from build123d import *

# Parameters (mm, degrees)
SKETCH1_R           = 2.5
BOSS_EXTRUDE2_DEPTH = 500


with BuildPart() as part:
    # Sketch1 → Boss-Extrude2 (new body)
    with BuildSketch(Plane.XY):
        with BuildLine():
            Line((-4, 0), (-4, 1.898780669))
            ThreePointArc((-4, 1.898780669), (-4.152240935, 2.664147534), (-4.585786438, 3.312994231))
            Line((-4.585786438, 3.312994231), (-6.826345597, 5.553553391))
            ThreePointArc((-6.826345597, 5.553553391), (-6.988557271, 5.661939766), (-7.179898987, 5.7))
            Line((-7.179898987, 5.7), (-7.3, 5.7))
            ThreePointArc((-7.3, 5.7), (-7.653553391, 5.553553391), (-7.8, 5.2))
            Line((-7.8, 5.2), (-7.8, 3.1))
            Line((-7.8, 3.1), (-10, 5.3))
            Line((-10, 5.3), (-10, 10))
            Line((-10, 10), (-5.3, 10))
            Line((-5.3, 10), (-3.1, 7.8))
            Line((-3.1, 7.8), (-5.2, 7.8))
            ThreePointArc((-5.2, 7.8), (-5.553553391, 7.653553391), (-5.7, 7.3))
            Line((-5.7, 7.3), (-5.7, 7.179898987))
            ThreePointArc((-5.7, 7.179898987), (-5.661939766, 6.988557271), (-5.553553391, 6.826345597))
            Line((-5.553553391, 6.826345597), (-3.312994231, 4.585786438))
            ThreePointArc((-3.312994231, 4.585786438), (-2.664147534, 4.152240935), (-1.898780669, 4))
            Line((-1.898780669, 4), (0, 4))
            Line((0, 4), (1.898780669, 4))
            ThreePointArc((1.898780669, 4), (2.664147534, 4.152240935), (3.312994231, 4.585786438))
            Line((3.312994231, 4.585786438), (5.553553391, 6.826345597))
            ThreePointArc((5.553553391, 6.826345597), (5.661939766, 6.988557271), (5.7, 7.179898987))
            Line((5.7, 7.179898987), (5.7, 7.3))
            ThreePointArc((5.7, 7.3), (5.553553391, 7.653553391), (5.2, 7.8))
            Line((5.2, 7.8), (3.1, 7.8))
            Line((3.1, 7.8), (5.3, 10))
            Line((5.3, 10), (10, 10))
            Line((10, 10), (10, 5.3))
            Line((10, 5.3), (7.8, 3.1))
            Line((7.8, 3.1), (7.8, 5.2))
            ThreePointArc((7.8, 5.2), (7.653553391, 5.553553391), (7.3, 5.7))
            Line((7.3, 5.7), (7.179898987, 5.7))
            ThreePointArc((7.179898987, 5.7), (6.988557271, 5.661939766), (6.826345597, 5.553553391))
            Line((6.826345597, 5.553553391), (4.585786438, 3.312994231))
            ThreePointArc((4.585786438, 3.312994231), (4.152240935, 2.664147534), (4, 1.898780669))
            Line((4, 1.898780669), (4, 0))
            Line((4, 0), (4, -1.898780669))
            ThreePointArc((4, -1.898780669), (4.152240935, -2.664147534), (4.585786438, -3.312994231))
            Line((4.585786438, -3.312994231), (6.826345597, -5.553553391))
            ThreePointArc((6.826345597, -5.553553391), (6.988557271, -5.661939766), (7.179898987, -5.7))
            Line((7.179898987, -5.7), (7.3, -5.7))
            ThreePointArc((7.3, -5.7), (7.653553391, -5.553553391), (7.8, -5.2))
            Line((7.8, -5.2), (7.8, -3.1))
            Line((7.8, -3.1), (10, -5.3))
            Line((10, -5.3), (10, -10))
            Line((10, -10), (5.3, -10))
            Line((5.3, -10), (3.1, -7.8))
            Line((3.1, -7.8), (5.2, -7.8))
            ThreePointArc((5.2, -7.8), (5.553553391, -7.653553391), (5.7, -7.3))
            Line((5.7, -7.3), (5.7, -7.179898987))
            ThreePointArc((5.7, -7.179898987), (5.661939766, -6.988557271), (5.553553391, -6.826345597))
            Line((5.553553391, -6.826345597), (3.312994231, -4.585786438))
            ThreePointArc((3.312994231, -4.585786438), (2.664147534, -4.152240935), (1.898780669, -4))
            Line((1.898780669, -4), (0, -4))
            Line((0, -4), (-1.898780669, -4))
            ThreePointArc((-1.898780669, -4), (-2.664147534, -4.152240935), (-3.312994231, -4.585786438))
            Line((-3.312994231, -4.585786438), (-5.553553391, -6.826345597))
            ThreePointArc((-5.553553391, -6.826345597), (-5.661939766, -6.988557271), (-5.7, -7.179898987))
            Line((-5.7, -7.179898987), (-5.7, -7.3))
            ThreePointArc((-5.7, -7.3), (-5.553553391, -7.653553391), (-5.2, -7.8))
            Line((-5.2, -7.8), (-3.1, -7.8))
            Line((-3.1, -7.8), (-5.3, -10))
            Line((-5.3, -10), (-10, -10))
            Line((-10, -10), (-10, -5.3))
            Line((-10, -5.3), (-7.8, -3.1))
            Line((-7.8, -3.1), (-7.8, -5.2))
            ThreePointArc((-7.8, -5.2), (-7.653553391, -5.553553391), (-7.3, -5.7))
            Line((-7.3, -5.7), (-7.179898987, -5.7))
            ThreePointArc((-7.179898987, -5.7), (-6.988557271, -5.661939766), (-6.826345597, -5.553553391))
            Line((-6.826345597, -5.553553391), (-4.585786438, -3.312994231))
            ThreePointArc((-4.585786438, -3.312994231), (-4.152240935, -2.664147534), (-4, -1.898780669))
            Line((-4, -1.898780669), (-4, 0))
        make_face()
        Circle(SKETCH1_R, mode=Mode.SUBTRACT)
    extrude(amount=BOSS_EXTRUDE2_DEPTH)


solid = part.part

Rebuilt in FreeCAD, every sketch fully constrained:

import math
import FreeCAD as App
import Part
import Sketcher
from FreeCAD import Vector
Q = App.Units.Quantity

doc = App.newDocument("Part")
body = doc.addObject("PartDesign::Body", "Body")

# Sketch on XY plane
sketch1 = body.newObject("Sketcher::SketchObject", "Sketch")
sketch1.AttachmentSupport = (doc.getObject("XY_Plane"), [""])
sketch1.MapMode = "FlatFace"
sketch1.addGeometry(Part.ArcOfCircle(Part.Circle(Vector(-6, 1.9, 0), Vector(0, 0, 1), 2), math.radians(0), math.radians(45)), False)
sketch1.addGeometry(Part.LineSegment(Vector(-4, 1.9, 0), Vector(-4, -1.9, 0)), False)
sketch1.addGeometry(Part.ArcOfCircle(Part.Circle(Vector(-6, -1.9, 0), Vector(0, 0, 1), 2), math.radians(-45), math.radians(0)), False)
sketch1.addGeometry(Part.LineSegment(Vector(-4.59, -3.31, 0), Vector(-6.83, -5.55, 0)), False)
sketch1.addGeometry(Part.ArcOfCircle(Part.Circle(Vector(-7.18, -5.2, 0), Vector(0, 0, 1), 0.5), math.radians(-90), math.radians(-45)), False)
sketch1.addGeometry(Part.LineSegment(Vector(-7.18, -5.7, 0), Vector(-7.3, -5.7, 0)), False)
sketch1.addGeometry(Part.ArcOfCircle(Part.Circle(Vector(-7.3, -5.2, 0), Vector(0, 0, 1), 0.5), math.radians(180), math.radians(270)), False)
sketch1.addGeometry(Part.LineSegment(Vector(-7.8, -5.2, 0), Vector(-7.8, -3.1, 0)), False)
sketch1.addGeometry(Part.LineSegment(Vector(-7.8, -3.1, 0), Vector(-10, -5.3, 0)), False)
sketch1.addGeometry(Part.LineSegment(Vector(-10, -5.3, 0), Vector(-10, -10, 0)), False)
sketch1.addGeometry(Part.LineSegment(Vector(-10, -10, 0), Vector(-5.3, -10, 0)), False)
sketch1.addGeometry(Part.LineSegment(Vector(-5.3, -10, 0), Vector(-3.1, -7.8, 0)), False)
sketch1.addGeometry(Part.LineSegment(Vector(-3.1, -7.8, 0), Vector(-5.2, -7.8, 0)), False)
sketch1.addGeometry(Part.ArcOfCircle(Part.Circle(Vector(-5.2, -7.3, 0), Vector(0, 0, 1), 0.5), math.radians(180), math.radians(270)), False)
sketch1.addGeometry(Part.LineSegment(Vector(-5.7, -7.3, 0), Vector(-5.7, -7.18, 0)), False)
sketch1.addGeometry(Part.ArcOfCircle(Part.Circle(Vector(-5.2, -7.18, 0), Vector(0, 0, 1), 0.5), math.radians(135), math.radians(180)), False)
sketch1.addGeometry(Part.LineSegment(Vector(-5.55, -6.83, 0), Vector(-3.31, -4.59, 0)), False)
sketch1.addGeometry(Part.ArcOfCircle(Part.Circle(Vector(-1.9, -6, 0), Vector(0, 0, 1), 2), math.radians(90), math.radians(135)), False)
sketch1.addGeometry(Part.LineSegment(Vector(-1.9, -4, 0), Vector(1.9, -4, 0)), False)
sketch1.addGeometry(Part.ArcOfCircle(Part.Circle(Vector(1.9, -6, 0), Vector(0, 0, 1), 2), math.radians(45), math.radians(90)), False)
sketch1.addGeometry(Part.LineSegment(Vector(3.31, -4.59, 0), Vector(5.55, -6.83, 0)), False)
sketch1.addGeometry(Part.ArcOfCircle(Part.Circle(Vector(5.2, -7.18, 0), Vector(0, 0, 1), 0.5), math.radians(0), math.radians(45)), False)
sketch1.addGeometry(Part.LineSegment(Vector(5.7, -7.18, 0), Vector(5.7, -7.3, 0)), False)
sketch1.addGeometry(Part.ArcOfCircle(Part.Circle(Vector(5.2, -7.3, 0), Vector(0, 0, 1), 0.5), math.radians(-90), math.radians(0)), False)
sketch1.addGeometry(Part.LineSegment(Vector(5.2, -7.8, 0), Vector(3.1, -7.8, 0)), False)
sketch1.addGeometry(Part.LineSegment(Vector(3.1, -7.8, 0), Vector(5.3, -10, 0)), False)
sketch1.addGeometry(Part.LineSegment(Vector(5.3, -10, 0), Vector(10, -10, 0)), False)
sketch1.addGeometry(Part.LineSegment(Vector(10, -10, 0), Vector(10, -5.3, 0)), False)
sketch1.addGeometry(Part.LineSegment(Vector(10, -5.3, 0), Vector(7.8, -3.1, 0)), False)
sketch1.addGeometry(Part.LineSegment(Vector(7.8, -3.1, 0), Vector(7.8, -5.2, 0)), False)
sketch1.addGeometry(Part.ArcOfCircle(Part.Circle(Vector(7.3, -5.2, 0), Vector(0, 0, 1), 0.5), math.radians(-90), math.radians(0)), False)
sketch1.addGeometry(Part.LineSegment(Vector(7.3, -5.7, 0), Vector(7.18, -5.7, 0)), False)
sketch1.addGeometry(Part.ArcOfCircle(Part.Circle(Vector(7.18, -5.2, 0), Vector(0, 0, 1), 0.5), math.radians(-135), math.radians(-90)), False)
sketch1.addGeometry(Part.LineSegment(Vector(6.83, -5.55, 0), Vector(4.59, -3.31, 0)), False)
sketch1.addGeometry(Part.ArcOfCircle(Part.Circle(Vector(6, -1.9, 0), Vector(0, 0, 1), 2), math.radians(180), math.radians(225)), False)
sketch1.addGeometry(Part.LineSegment(Vector(4, -1.9, 0), Vector(4, 1.9, 0)), False)
sketch1.addGeometry(Part.ArcOfCircle(Part.Circle(Vector(6, 1.9, 0), Vector(0, 0, 1), 2), math.radians(135), math.radians(180)), False)
sketch1.addGeometry(Part.LineSegment(Vector(4.59, 3.31, 0), Vector(6.83, 5.55, 0)), False)
sketch1.addGeometry(Part.ArcOfCircle(Part.Circle(Vector(7.18, 5.2, 0), Vector(0, 0, 1), 0.5), math.radians(90), math.radians(135)), False)
sketch1.addGeometry(Part.LineSegment(Vector(7.18, 5.7, 0), Vector(7.3, 5.7, 0)), False)
sketch1.addGeometry(Part.ArcOfCircle(Part.Circle(Vector(7.3, 5.2, 0), Vector(0, 0, 1), 0.5), math.radians(0), math.radians(90)), False)
sketch1.addGeometry(Part.LineSegment(Vector(7.8, 5.2, 0), Vector(7.8, 3.1, 0)), False)
sketch1.addGeometry(Part.LineSegment(Vector(7.8, 3.1, 0), Vector(10, 5.3, 0)), False)
sketch1.addGeometry(Part.LineSegment(Vector(10, 5.3, 0), Vector(10, 10, 0)), False)
sketch1.addGeometry(Part.LineSegment(Vector(10, 10, 0), Vector(5.3, 10, 0)), False)
sketch1.addGeometry(Part.LineSegment(Vector(5.3, 10, 0), Vector(3.1, 7.8, 0)), False)
sketch1.addGeometry(Part.LineSegment(Vector(3.1, 7.8, 0), Vector(5.2, 7.8, 0)), False)
sketch1.addGeometry(Part.ArcOfCircle(Part.Circle(Vector(5.2, 7.3, 0), Vector(0, 0, 1), 0.5), math.radians(0), math.radians(90)), False)
sketch1.addGeometry(Part.LineSegment(Vector(5.7, 7.3, 0), Vector(5.7, 7.18, 0)), False)
sketch1.addGeometry(Part.ArcOfCircle(Part.Circle(Vector(5.2, 7.18, 0), Vector(0, 0, 1), 0.5), math.radians(-45), math.radians(0)), False)
sketch1.addGeometry(Part.LineSegment(Vector(5.55, 6.83, 0), Vector(3.31, 4.59, 0)), False)
sketch1.addGeometry(Part.ArcOfCircle(Part.Circle(Vector(1.9, 6, 0), Vector(0, 0, 1), 2), math.radians(-90), math.radians(-45)), False)
sketch1.addGeometry(Part.LineSegment(Vector(1.9, 4, 0), Vector(-1.9, 4, 0)), False)
sketch1.addGeometry(Part.ArcOfCircle(Part.Circle(Vector(-1.9, 6, 0), Vector(0, 0, 1), 2), math.radians(-135), math.radians(-90)), False)
sketch1.addGeometry(Part.LineSegment(Vector(-3.31, 4.59, 0), Vector(-5.55, 6.83, 0)), False)
sketch1.addGeometry(Part.ArcOfCircle(Part.Circle(Vector(-5.2, 7.18, 0), Vector(0, 0, 1), 0.5), math.radians(-180), math.radians(-135)), False)
sketch1.addGeometry(Part.LineSegment(Vector(-5.7, 7.18, 0), Vector(-5.7, 7.3, 0)), False)
sketch1.addGeometry(Part.ArcOfCircle(Part.Circle(Vector(-5.2, 7.3, 0), Vector(0, 0, 1), 0.5), math.radians(90), math.radians(180)), False)
sketch1.addGeometry(Part.LineSegment(Vector(-5.2, 7.8, 0), Vector(-3.1, 7.8, 0)), False)
sketch1.addGeometry(Part.LineSegment(Vector(-3.1, 7.8, 0), Vector(-5.3, 10, 0)), False)
sketch1.addGeometry(Part.LineSegment(Vector(-5.3, 10, 0), Vector(-10, 10, 0)), False)
sketch1.addGeometry(Part.LineSegment(Vector(-10, 10, 0), Vector(-10, 5.3, 0)), False)
sketch1.addGeometry(Part.LineSegment(Vector(-10, 5.3, 0), Vector(-7.8, 3.1, 0)), False)
sketch1.addGeometry(Part.LineSegment(Vector(-7.8, 3.1, 0), Vector(-7.8, 5.2, 0)), False)
sketch1.addGeometry(Part.ArcOfCircle(Part.Circle(Vector(-7.3, 5.2, 0), Vector(0, 0, 1), 0.5), math.radians(90), math.radians(180)), False)
sketch1.addGeometry(Part.LineSegment(Vector(-7.3, 5.7, 0), Vector(-7.18, 5.7, 0)), False)
sketch1.addGeometry(Part.ArcOfCircle(Part.Circle(Vector(-7.18, 5.2, 0), Vector(0, 0, 1), 0.5), math.radians(45), math.radians(90)), False)
sketch1.addGeometry(Part.LineSegment(Vector(-6.83, 5.55, 0), Vector(-4.59, 3.31, 0)), False)
sketch1.addGeometry(Part.Circle(Vector(0, 0, 0), Vector(0, 0, 1), 2.5), False)
sketch1.addConstraint(Sketcher.Constraint("Tangent", 0, 1, 1, 1))
sketch1.addConstraint(Sketcher.Constraint("Tangent", 1, 2, 2, 2))
sketch1.addConstraint(Sketcher.Constraint("Tangent", 2, 1, 3, 1))
sketch1.addConstraint(Sketcher.Constraint("Tangent", 3, 2, 4, 2))
sketch1.addConstraint(Sketcher.Constraint("Tangent", 4, 1, 5, 1))
sketch1.addConstraint(Sketcher.Constraint("Tangent", 5, 2, 6, 2))
sketch1.addConstraint(Sketcher.Constraint("Tangent", 6, 1, 7, 1))
sketch1.addConstraint(Sketcher.Constraint("Coincident", 7, 2, 8, 1))
sketch1.addConstraint(Sketcher.Constraint("Coincident", 8, 2, 9, 1))
sketch1.addConstraint(Sketcher.Constraint("Coincident", 9, 2, 10, 1))
sketch1.addConstraint(Sketcher.Constraint("Coincident", 10, 2, 11, 1))
sketch1.addConstraint(Sketcher.Constraint("Coincident", 11, 2, 12, 1))
sketch1.addConstraint(Sketcher.Constraint("Tangent", 12, 2, 13, 2))
sketch1.addConstraint(Sketcher.Constraint("Tangent", 13, 1, 14, 1))
sketch1.addConstraint(Sketcher.Constraint("Tangent", 14, 2, 15, 2))
sketch1.addConstraint(Sketcher.Constraint("Tangent", 15, 1, 16, 1))
sketch1.addConstraint(Sketcher.Constraint("Tangent", 16, 2, 17, 2))
sketch1.addConstraint(Sketcher.Constraint("Tangent", 17, 1, 18, 1))
sketch1.addConstraint(Sketcher.Constraint("Tangent", 18, 2, 19, 2))
sketch1.addConstraint(Sketcher.Constraint("Tangent", 19, 1, 20, 1))
sketch1.addConstraint(Sketcher.Constraint("Tangent", 20, 2, 21, 2))
sketch1.addConstraint(Sketcher.Constraint("Tangent", 21, 1, 22, 1))
sketch1.addConstraint(Sketcher.Constraint("Tangent", 22, 2, 23, 2))
sketch1.addConstraint(Sketcher.Constraint("Tangent", 23, 1, 24, 1))
sketch1.addConstraint(Sketcher.Constraint("Coincident", 24, 2, 25, 1))
sketch1.addConstraint(Sketcher.Constraint("Coincident", 25, 2, 26, 1))
sketch1.addConstraint(Sketcher.Constraint("Coincident", 26, 2, 27, 1))
sketch1.addConstraint(Sketcher.Constraint("Coincident", 27, 2, 28, 1))
sketch1.addConstraint(Sketcher.Constraint("Coincident", 28, 2, 29, 1))
sketch1.addConstraint(Sketcher.Constraint("Tangent", 29, 2, 30, 2))
sketch1.addConstraint(Sketcher.Constraint("Tangent", 30, 1, 31, 1))
sketch1.addConstraint(Sketcher.Constraint("Tangent", 31, 2, 32, 2))
sketch1.addConstraint(Sketcher.Constraint("Tangent", 32, 1, 33, 1))
sketch1.addConstraint(Sketcher.Constraint("Tangent", 33, 2, 34, 2))
sketch1.addConstraint(Sketcher.Constraint("Tangent", 34, 1, 35, 1))
sketch1.addConstraint(Sketcher.Constraint("Tangent", 35, 2, 36, 2))
sketch1.addConstraint(Sketcher.Constraint("Tangent", 36, 1, 37, 1))
sketch1.addConstraint(Sketcher.Constraint("Tangent", 37, 2, 38, 2))
sketch1.addConstraint(Sketcher.Constraint("Tangent", 38, 1, 39, 1))
sketch1.addConstraint(Sketcher.Constraint("Tangent", 39, 2, 40, 2))
sketch1.addConstraint(Sketcher.Constraint("Tangent", 40, 1, 41, 1))
sketch1.addConstraint(Sketcher.Constraint("Coincident", 41, 2, 42, 1))
sketch1.addConstraint(Sketcher.Constraint("Coincident", 42, 2, 43, 1))
sketch1.addConstraint(Sketcher.Constraint("Coincident", 43, 2, 44, 1))
sketch1.addConstraint(Sketcher.Constraint("Coincident", 44, 2, 45, 1))
sketch1.addConstraint(Sketcher.Constraint("Coincident", 45, 2, 46, 1))
sketch1.addConstraint(Sketcher.Constraint("Tangent", 46, 2, 47, 2))
sketch1.addConstraint(Sketcher.Constraint("Tangent", 47, 1, 48, 1))
sketch1.addConstraint(Sketcher.Constraint("Tangent", 48, 2, 49, 2))
sketch1.addConstraint(Sketcher.Constraint("Tangent", 49, 1, 50, 1))
sketch1.addConstraint(Sketcher.Constraint("Tangent", 50, 2, 51, 2))
sketch1.addConstraint(Sketcher.Constraint("Tangent", 51, 1, 52, 1))
sketch1.addConstraint(Sketcher.Constraint("Tangent", 52, 2, 53, 2))
sketch1.addConstraint(Sketcher.Constraint("Tangent", 53, 1, 54, 1))
sketch1.addConstraint(Sketcher.Constraint("Tangent", 54, 2, 55, 2))
sketch1.addConstraint(Sketcher.Constraint("Tangent", 55, 1, 56, 1))
sketch1.addConstraint(Sketcher.Constraint("Tangent", 56, 2, 57, 2))
sketch1.addConstraint(Sketcher.Constraint("Tangent", 57, 1, 58, 1))
sketch1.addConstraint(Sketcher.Constraint("Coincident", 58, 2, 59, 1))
sketch1.addConstraint(Sketcher.Constraint("Coincident", 59, 2, 60, 1))
sketch1.addConstraint(Sketcher.Constraint("Coincident", 60, 2, 61, 1))
sketch1.addConstraint(Sketcher.Constraint("Coincident", 61, 2, 62, 1))
sketch1.addConstraint(Sketcher.Constraint("Coincident", 62, 2, 63, 1))
sketch1.addConstraint(Sketcher.Constraint("Tangent", 63, 2, 64, 2))
sketch1.addConstraint(Sketcher.Constraint("Tangent", 64, 1, 65, 1))
sketch1.addConstraint(Sketcher.Constraint("Tangent", 65, 2, 66, 2))
sketch1.addConstraint(Sketcher.Constraint("Tangent", 66, 1, 67, 1))
sketch1.addConstraint(Sketcher.Constraint("Tangent", 67, 2, 0, 2))
sketch1.addConstraint(Sketcher.Constraint("Vertical", 1))
sketch1.addConstraint(Sketcher.Constraint("Horizontal", 5))
sketch1.addConstraint(Sketcher.Constraint("Vertical", 7))
sketch1.addConstraint(Sketcher.Constraint("Vertical", 9))
sketch1.addConstraint(Sketcher.Constraint("Horizontal", 10))
sketch1.addConstraint(Sketcher.Constraint("Horizontal", 12))
sketch1.addConstraint(Sketcher.Constraint("Vertical", 14))
sketch1.addConstraint(Sketcher.Constraint("Horizontal", 18))
sketch1.addConstraint(Sketcher.Constraint("Vertical", 22))
sketch1.addConstraint(Sketcher.Constraint("Horizontal", 24))
sketch1.addConstraint(Sketcher.Constraint("Horizontal", 26))
sketch1.addConstraint(Sketcher.Constraint("Vertical", 27))
sketch1.addConstraint(Sketcher.Constraint("Vertical", 29))
sketch1.addConstraint(Sketcher.Constraint("Horizontal", 31))
sketch1.addConstraint(Sketcher.Constraint("Vertical", 35))
sketch1.addConstraint(Sketcher.Constraint("Horizontal", 39))
sketch1.addConstraint(Sketcher.Constraint("Vertical", 41))
sketch1.addConstraint(Sketcher.Constraint("Vertical", 43))
sketch1.addConstraint(Sketcher.Constraint("Horizontal", 44))
sketch1.addConstraint(Sketcher.Constraint("Horizontal", 46))
sketch1.addConstraint(Sketcher.Constraint("Vertical", 48))
sketch1.addConstraint(Sketcher.Constraint("Horizontal", 52))
sketch1.addConstraint(Sketcher.Constraint("Vertical", 56))
sketch1.addConstraint(Sketcher.Constraint("Horizontal", 58))
sketch1.addConstraint(Sketcher.Constraint("Horizontal", 60))
sketch1.addConstraint(Sketcher.Constraint("Vertical", 61))
sketch1.addConstraint(Sketcher.Constraint("Vertical", 63))
sketch1.addConstraint(Sketcher.Constraint("Horizontal", 65))
sketch1.addConstraint(Sketcher.Constraint("Coincident", 68, 3, -1, 1))
sketch1.addConstraint(Sketcher.Constraint("Equal", 0, 2))
sketch1.addConstraint(Sketcher.Constraint("Equal", 4, 6))
sketch1.addConstraint(Sketcher.Constraint("Equal", 6, 13))
sketch1.addConstraint(Sketcher.Constraint("Equal", 13, 15))
sketch1.addConstraint(Sketcher.Constraint("Equal", 2, 17))
sketch1.addConstraint(Sketcher.Constraint("Equal", 17, 19))
sketch1.addConstraint(Sketcher.Constraint("Equal", 15, 21))
sketch1.addConstraint(Sketcher.Constraint("Equal", 21, 23))
sketch1.addConstraint(Sketcher.Constraint("Equal", 23, 30))
sketch1.addConstraint(Sketcher.Constraint("Equal", 30, 32))
sketch1.addConstraint(Sketcher.Constraint("Equal", 19, 34))
sketch1.addConstraint(Sketcher.Constraint("Equal", 34, 36))
sketch1.addConstraint(Sketcher.Constraint("Equal", 32, 38))
sketch1.addConstraint(Sketcher.Constraint("Equal", 38, 40))
sketch1.addConstraint(Sketcher.Constraint("Equal", 40, 47))
sketch1.addConstraint(Sketcher.Constraint("Equal", 47, 49))
sketch1.addConstraint(Sketcher.Constraint("Equal", 36, 51))
sketch1.addConstraint(Sketcher.Constraint("Equal", 51, 53))
sketch1.addConstraint(Sketcher.Constraint("Equal", 49, 55))
sketch1.addConstraint(Sketcher.Constraint("Equal", 55, 57))
sketch1.addConstraint(Sketcher.Constraint("Equal", 57, 64))
sketch1.addConstraint(Sketcher.Constraint("Equal", 64, 66))
sketch1.addConstraint(Sketcher.Constraint("Symmetric", 0, 3, 34, 3, -1, 1))
sketch1.addConstraint(Sketcher.Constraint("Symmetric", 4, 3, 38, 3, -1, 1))
sketch1.addConstraint(Sketcher.Constraint("Symmetric", 13, 3, 47, 3, -1, 1))
sketch1.addConstraint(Sketcher.Constraint("Symmetric", 17, 3, 51, 3, -1, 1))
sketch1.addConstraint(Sketcher.Constraint("Symmetric", 21, 3, 55, 3, -1, 1))
sketch1.addConstraint(Sketcher.Constraint("Symmetric", 30, 3, 64, 3, -1, 1))
sketch1.addConstraint(Sketcher.Constraint("Symmetric", 7, 2, 41, 2, -1, 1))
sketch1.addConstraint(Sketcher.Constraint("Symmetric", 8, 2, 42, 2, -1, 1))
sketch1.addConstraint(Sketcher.Constraint("Symmetric", 10, 2, 44, 2, -1, 1))
sketch1.addConstraint(Sketcher.Constraint("Symmetric", 24, 2, 58, 2, -1, 1))
sketch1.addConstraint(Sketcher.Constraint("Symmetric", 25, 2, 59, 2, -1, 1))
sketch1.addConstraint(Sketcher.Constraint("Symmetric", 27, 2, 61, 2, -1, 1))
sketch1.addConstraint(Sketcher.Constraint("Symmetric", 15, 3, 21, 3, -2))
sketch1.addConstraint(Sketcher.Constraint("Symmetric", 6, 3, 30, 3, -2))
sketch1.addConstraint(Sketcher.Constraint("Symmetric", 11, 2, 24, 2, -2))
sketch1.addConstraint(Sketcher.Constraint("Symmetric", 10, 2, 25, 2, -2))
sketch1.addConstraint(Sketcher.Constraint("Symmetric", 8, 2, 27, 2, -2))
sketch1.addConstraint(Sketcher.Constraint("Symmetric", 3, 2, 32, 1, -2))
sketch1.addConstraint(Sketcher.Constraint("Symmetric", 50, 2, 53, 1, -2))
sketch1.addConstraint(Sketcher.Constraint("Symmetric", 37, 2, 66, 1, -2))
sketch1.addConstraint(Sketcher.Constraint("Parallel", 3, 8))
sketch1.addConstraint(Sketcher.Constraint("Parallel", 8, 11))
sketch1.addConstraint(Sketcher.Constraint("Parallel", 11, 16))
sketch1.addConstraint(Sketcher.Constraint("Perpendicular", 16, 20))
sketch1.addConstraint(Sketcher.Constraint("Parallel", 20, 25))
sketch1.addConstraint(Sketcher.Constraint("Parallel", 25, 28))
sketch1.addConstraint(Sketcher.Constraint("Parallel", 42, 45))
sketch1.addConstraint(Sketcher.Constraint("Parallel", 59, 62))
sketch1.addConstraint(Sketcher.Constraint("Equal", 52, 1))
sketch1.addConstraint(Sketcher.Constraint("Equal", 58, 7))
sketch1.addConstraint(Sketcher.Constraint("Equal", 60, 9))
sketch1.addConstraint(Sketcher.Constraint("Equal", 65, 14))
sketch1.addConstraint(Sketcher.Constraint("Equal", 8, 11))
sketch1.addConstraint(Sketcher.Constraint("Equal", 3, 16))
sketch1.addConstraint(Sketcher.Constraint("Diameter", 68, Q("5 mm")))
sketch1.addConstraint(Sketcher.Constraint("Radius", 0, Q("2 mm")))
sketch1.addConstraint(Sketcher.Constraint("Radius", 4, Q("0.5 mm")))
sketch1.addConstraint(Sketcher.Constraint("DistanceX", 10, 1, 10, 2, Q("4.7 mm")))
sketch1.addConstraint(Sketcher.Constraint("DistanceX", 12, 2, 12, 1, Q("2.1 mm")))
sketch1.addConstraint(Sketcher.Constraint("DistanceX", 0, 3, -1, 1, Q("6 mm")))
sketch1.addConstraint(Sketcher.Constraint("DistanceX", 8, 2, -1, 1, Q("10 mm")))
sketch1.addConstraint(Sketcher.Constraint("DistanceY", 4, 3, -1, 1, Q("5.2 mm")))
sketch1.addConstraint(Sketcher.Constraint("DistanceX", 5, 2, 5, 1, Q("0.120101 mm")))
pad1 = body.newObject("PartDesign::Pad", "Pad")
pad1.Profile = sketch1
pad1.Length = 500

doc.recompute()
